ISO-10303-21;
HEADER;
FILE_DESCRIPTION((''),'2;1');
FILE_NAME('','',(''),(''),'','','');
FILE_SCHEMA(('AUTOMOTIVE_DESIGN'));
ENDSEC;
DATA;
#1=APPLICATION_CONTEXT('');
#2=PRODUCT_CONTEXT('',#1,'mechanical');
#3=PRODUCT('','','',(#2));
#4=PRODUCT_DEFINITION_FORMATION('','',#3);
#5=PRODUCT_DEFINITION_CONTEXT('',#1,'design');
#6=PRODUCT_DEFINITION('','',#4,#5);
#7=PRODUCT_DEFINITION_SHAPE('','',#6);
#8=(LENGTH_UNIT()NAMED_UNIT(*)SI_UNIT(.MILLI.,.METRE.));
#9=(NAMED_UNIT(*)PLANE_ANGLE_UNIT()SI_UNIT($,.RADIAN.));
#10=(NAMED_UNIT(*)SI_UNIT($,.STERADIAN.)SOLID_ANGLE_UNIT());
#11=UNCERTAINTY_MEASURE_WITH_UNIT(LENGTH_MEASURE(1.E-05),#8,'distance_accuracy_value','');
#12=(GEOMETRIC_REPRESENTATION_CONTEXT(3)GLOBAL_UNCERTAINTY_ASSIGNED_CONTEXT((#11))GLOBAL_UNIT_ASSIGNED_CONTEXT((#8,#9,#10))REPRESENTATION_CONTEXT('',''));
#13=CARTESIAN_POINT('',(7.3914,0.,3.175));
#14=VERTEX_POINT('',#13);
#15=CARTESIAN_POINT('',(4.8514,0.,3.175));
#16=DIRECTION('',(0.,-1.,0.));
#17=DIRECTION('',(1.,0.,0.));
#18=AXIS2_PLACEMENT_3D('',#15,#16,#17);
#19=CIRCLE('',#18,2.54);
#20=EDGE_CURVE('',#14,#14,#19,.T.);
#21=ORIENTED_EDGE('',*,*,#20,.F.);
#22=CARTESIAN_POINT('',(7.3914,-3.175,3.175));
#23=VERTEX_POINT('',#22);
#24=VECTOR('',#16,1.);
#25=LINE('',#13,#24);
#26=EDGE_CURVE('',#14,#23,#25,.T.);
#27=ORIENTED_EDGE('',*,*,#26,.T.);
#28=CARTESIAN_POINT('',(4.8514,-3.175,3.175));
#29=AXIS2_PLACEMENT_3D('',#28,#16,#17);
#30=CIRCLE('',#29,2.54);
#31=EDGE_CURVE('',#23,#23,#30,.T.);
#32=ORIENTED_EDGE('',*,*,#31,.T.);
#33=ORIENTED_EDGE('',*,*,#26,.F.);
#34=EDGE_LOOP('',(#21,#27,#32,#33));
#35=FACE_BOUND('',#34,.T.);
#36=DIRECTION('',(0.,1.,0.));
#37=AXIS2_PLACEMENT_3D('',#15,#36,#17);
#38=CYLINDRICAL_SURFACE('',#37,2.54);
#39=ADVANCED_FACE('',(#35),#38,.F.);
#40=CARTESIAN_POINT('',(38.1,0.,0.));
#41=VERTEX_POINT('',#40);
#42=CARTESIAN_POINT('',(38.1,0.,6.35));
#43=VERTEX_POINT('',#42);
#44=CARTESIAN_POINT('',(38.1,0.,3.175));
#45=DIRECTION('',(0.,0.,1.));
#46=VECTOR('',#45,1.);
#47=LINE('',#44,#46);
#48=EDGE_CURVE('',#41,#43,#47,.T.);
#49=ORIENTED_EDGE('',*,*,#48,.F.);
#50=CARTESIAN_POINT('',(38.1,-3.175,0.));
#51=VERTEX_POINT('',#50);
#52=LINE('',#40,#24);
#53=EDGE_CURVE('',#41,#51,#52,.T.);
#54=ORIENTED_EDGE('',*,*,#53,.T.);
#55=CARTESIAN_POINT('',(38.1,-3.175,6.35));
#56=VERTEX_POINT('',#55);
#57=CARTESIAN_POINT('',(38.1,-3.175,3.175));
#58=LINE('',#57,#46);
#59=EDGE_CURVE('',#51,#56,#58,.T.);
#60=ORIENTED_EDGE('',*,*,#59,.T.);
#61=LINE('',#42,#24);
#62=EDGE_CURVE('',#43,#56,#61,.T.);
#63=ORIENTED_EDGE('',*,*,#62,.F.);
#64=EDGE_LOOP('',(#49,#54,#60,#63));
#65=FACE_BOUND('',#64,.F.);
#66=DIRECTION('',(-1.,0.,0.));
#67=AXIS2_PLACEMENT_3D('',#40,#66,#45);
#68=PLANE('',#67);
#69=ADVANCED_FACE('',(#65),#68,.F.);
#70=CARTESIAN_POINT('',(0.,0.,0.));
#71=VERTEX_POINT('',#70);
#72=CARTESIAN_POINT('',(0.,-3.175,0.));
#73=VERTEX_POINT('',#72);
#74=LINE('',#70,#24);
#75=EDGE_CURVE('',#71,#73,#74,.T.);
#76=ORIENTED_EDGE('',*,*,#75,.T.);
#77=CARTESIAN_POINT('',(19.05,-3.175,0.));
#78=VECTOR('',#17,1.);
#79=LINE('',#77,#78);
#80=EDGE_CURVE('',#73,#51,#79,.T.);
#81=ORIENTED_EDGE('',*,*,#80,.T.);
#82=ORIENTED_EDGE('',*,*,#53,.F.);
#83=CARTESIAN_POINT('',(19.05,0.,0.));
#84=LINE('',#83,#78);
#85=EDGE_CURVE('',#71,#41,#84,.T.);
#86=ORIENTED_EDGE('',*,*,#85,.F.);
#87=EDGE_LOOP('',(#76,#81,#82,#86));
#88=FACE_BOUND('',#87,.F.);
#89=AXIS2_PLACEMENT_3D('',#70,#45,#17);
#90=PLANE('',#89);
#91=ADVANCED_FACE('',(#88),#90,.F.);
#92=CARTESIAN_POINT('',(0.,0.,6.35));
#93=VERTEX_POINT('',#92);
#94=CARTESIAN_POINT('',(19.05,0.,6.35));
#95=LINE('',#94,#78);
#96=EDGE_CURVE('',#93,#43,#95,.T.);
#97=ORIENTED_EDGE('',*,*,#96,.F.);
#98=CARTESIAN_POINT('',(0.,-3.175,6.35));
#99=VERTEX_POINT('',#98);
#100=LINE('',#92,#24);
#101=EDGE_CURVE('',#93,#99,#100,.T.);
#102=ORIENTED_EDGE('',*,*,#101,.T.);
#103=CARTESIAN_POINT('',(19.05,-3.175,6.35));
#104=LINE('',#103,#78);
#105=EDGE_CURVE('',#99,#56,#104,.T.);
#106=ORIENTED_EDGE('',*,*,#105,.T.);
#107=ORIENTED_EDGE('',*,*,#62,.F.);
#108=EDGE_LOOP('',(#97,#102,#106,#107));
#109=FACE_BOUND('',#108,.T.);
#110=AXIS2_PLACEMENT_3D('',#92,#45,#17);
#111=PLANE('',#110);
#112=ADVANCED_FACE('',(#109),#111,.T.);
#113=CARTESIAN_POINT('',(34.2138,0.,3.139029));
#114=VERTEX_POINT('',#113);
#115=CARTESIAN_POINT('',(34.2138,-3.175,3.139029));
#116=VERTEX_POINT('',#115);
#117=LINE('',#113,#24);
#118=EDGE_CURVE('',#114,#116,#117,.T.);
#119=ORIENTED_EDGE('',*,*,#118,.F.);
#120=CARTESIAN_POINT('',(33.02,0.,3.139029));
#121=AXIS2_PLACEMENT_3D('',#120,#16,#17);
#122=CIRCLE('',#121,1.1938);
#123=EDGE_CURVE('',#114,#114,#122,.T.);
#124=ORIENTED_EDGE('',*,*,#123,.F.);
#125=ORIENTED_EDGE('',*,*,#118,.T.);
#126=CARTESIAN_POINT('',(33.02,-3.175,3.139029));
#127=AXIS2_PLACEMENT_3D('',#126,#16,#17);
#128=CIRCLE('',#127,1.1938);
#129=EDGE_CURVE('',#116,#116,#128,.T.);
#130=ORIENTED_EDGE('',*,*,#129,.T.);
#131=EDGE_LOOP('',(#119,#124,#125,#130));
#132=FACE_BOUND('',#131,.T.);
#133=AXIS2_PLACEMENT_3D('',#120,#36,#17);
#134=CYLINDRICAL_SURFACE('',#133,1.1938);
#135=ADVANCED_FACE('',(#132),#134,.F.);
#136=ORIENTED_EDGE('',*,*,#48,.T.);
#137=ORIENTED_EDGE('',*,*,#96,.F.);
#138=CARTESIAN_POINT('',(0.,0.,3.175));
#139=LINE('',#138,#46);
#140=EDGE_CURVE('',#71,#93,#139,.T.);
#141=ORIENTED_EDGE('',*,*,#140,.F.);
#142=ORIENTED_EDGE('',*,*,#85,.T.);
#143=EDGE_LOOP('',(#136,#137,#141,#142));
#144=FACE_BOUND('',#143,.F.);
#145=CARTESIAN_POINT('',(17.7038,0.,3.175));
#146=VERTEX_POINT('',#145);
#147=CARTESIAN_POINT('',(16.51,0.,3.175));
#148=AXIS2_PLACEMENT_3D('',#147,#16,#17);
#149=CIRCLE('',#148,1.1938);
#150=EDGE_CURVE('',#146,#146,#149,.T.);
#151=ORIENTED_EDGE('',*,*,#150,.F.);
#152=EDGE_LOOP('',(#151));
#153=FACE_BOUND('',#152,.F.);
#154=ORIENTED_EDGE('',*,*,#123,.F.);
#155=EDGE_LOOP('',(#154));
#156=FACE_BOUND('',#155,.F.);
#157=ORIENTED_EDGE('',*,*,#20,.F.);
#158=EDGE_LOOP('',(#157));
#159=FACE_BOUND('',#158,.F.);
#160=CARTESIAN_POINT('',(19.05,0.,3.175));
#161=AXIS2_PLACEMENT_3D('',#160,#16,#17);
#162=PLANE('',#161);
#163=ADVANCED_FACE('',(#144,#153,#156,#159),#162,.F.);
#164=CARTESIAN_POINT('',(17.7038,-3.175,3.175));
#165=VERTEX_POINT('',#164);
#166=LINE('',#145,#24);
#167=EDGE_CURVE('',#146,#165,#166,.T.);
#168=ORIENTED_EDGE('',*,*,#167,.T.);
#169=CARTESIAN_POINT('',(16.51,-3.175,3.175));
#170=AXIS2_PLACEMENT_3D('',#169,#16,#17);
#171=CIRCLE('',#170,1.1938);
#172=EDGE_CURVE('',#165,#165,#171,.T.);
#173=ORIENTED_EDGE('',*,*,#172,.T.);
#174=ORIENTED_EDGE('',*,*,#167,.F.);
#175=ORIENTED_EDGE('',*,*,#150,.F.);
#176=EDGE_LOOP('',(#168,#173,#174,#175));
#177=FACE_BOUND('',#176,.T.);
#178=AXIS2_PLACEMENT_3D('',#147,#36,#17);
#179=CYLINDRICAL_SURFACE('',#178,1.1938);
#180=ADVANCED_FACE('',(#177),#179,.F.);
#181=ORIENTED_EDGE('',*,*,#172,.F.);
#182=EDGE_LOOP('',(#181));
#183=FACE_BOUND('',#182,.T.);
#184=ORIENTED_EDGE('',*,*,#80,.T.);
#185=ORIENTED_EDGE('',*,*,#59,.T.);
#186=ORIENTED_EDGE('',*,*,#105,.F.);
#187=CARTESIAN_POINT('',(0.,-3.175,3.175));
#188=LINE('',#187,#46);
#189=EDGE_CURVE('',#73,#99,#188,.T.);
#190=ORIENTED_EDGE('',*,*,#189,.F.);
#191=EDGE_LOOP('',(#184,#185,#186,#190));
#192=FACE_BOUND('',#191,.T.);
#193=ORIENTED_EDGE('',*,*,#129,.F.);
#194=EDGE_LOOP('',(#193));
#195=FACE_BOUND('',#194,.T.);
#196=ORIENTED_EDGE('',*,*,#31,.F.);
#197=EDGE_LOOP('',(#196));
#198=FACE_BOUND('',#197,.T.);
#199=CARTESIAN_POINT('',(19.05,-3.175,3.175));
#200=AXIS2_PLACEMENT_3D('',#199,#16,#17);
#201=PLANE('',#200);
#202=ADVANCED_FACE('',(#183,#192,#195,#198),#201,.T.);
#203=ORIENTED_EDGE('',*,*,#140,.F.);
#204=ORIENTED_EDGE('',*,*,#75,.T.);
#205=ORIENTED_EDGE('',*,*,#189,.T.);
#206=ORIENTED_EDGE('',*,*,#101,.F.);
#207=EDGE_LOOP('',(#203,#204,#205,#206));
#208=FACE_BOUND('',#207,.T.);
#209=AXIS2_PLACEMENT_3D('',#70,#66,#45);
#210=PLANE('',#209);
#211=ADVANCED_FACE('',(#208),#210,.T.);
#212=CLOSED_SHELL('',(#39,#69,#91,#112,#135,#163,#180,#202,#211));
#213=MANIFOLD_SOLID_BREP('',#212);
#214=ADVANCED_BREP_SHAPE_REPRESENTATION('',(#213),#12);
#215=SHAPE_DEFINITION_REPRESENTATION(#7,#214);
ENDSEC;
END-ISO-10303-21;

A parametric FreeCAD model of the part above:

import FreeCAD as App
import Part
import Sketcher
from FreeCAD import Vector
Q = App.Units.Quantity


def add_polygon(sketch, points):
    """Adds a closed chain of lines whose ends are joined by coincident constraints."""
    first, n = sketch.GeometryCount, len(points)
    for a, b in zip(points, points[1:] + points[:1]):
        sketch.addGeometry(Part.LineSegment(App.Vector(*a, 0), App.Vector(*b, 0)), False)
    for i in range(n):
        sketch.addConstraint(Sketcher.Constraint("Coincident", first + i, 2, first + (i + 1) % n, 1))

doc = App.newDocument("Part")
params = doc.addObject("Spreadsheet::Sheet", "Params")
for row, (alias, value) in enumerate([
    ("sketch1_diameter", "0.2 in"),
    ("sketch1_diameter2", "0.094 in"),
    ("sketch1_width", "1.5 in"),
    ("sketch1_height", "0.25 in"),
    ("pad1_length", "0.125 in"),
], start=1):
    params.set(f"A{row}", alias)
    params.set(f"B{row}", "=" + value)
    params.setAlias(f"B{row}", alias)

body = doc.addObject("PartDesign::Body", "Body")

# Sketch on XZ plane
sketch1 = body.newObject("Sketcher::SketchObject", "Sketch")
sketch1.AttachmentSupport = (doc.getObject("XZ_Plane"), [""])
sketch1.MapMode = "FlatFace"
add_polygon(sketch1, [(0, 6.3), (0, 0), (38.1, 0), (38.1, 6.3)])  # lines 0-3
sketch1.addGeometry(Part.Circle(Vector(33, 3.1, 0), Vector(0, 0, 1), 1.2), False)  # 4
sketch1.addGeometry(Part.Circle(Vector(4.9, 3.2, 0), Vector(0, 0, 1), 2.5), False)  # 5
sketch1.addGeometry(Part.Circle(Vector(16.5, 3.2, 0), Vector(0, 0, 1), 1.2), False)  # 6
sketch1.addConstraint([
    Sketcher.Constraint("Vertical", 0),
    Sketcher.Constraint("Horizontal", 1),
    Sketcher.Constraint("Vertical", 2),
    Sketcher.Constraint("Horizontal", 3),
    Sketcher.Constraint("Coincident", 0, 2, -1, 1),
    Sketcher.Constraint("Equal", 4, 6),
    Sketcher.Constraint("Horizontal", 5, 3, 6, 3),
    Sketcher.Constraint("Diameter", 5, Q("0.2 in")),
    Sketcher.Constraint("Diameter", 4, Q("0.094 in")),
    Sketcher.Constraint("DistanceX", 1, 1, 1, 2, Q("1.5 in")),
    Sketcher.Constraint("DistanceY", 0, 2, 0, 1, Q("0.25 in")),
    Sketcher.Constraint("DistanceX", -1, 1, 4, 3, Q("1.3 in")),
    Sketcher.Constraint("DistanceX", -1, 1, 6, 3, Q("0.65 in")),
    Sketcher.Constraint("DistanceX", -1, 1, 5, 3, Q("0.191 in")),
    Sketcher.Constraint("DistanceY", -1, 1, 5, 3, Q("0.125 in")),
    Sketcher.Constraint("DistanceY", -1, 1, 4, 3, 3.139029),
])
sketch1.setExpression("Constraints[11]", "Params.sketch1_diameter")
sketch1.setExpression("Constraints[12]", "Params.sketch1_diameter2")
sketch1.setExpression("Constraints[13]", "Params.sketch1_width")
sketch1.setExpression("Constraints[14]", "Params.sketch1_height")
pad1 = body.newObject("PartDesign::Pad", "Pad")
pad1.Profile = sketch1
pad1.setExpression("Length", "Params.pad1_length")

doc.recompute()
